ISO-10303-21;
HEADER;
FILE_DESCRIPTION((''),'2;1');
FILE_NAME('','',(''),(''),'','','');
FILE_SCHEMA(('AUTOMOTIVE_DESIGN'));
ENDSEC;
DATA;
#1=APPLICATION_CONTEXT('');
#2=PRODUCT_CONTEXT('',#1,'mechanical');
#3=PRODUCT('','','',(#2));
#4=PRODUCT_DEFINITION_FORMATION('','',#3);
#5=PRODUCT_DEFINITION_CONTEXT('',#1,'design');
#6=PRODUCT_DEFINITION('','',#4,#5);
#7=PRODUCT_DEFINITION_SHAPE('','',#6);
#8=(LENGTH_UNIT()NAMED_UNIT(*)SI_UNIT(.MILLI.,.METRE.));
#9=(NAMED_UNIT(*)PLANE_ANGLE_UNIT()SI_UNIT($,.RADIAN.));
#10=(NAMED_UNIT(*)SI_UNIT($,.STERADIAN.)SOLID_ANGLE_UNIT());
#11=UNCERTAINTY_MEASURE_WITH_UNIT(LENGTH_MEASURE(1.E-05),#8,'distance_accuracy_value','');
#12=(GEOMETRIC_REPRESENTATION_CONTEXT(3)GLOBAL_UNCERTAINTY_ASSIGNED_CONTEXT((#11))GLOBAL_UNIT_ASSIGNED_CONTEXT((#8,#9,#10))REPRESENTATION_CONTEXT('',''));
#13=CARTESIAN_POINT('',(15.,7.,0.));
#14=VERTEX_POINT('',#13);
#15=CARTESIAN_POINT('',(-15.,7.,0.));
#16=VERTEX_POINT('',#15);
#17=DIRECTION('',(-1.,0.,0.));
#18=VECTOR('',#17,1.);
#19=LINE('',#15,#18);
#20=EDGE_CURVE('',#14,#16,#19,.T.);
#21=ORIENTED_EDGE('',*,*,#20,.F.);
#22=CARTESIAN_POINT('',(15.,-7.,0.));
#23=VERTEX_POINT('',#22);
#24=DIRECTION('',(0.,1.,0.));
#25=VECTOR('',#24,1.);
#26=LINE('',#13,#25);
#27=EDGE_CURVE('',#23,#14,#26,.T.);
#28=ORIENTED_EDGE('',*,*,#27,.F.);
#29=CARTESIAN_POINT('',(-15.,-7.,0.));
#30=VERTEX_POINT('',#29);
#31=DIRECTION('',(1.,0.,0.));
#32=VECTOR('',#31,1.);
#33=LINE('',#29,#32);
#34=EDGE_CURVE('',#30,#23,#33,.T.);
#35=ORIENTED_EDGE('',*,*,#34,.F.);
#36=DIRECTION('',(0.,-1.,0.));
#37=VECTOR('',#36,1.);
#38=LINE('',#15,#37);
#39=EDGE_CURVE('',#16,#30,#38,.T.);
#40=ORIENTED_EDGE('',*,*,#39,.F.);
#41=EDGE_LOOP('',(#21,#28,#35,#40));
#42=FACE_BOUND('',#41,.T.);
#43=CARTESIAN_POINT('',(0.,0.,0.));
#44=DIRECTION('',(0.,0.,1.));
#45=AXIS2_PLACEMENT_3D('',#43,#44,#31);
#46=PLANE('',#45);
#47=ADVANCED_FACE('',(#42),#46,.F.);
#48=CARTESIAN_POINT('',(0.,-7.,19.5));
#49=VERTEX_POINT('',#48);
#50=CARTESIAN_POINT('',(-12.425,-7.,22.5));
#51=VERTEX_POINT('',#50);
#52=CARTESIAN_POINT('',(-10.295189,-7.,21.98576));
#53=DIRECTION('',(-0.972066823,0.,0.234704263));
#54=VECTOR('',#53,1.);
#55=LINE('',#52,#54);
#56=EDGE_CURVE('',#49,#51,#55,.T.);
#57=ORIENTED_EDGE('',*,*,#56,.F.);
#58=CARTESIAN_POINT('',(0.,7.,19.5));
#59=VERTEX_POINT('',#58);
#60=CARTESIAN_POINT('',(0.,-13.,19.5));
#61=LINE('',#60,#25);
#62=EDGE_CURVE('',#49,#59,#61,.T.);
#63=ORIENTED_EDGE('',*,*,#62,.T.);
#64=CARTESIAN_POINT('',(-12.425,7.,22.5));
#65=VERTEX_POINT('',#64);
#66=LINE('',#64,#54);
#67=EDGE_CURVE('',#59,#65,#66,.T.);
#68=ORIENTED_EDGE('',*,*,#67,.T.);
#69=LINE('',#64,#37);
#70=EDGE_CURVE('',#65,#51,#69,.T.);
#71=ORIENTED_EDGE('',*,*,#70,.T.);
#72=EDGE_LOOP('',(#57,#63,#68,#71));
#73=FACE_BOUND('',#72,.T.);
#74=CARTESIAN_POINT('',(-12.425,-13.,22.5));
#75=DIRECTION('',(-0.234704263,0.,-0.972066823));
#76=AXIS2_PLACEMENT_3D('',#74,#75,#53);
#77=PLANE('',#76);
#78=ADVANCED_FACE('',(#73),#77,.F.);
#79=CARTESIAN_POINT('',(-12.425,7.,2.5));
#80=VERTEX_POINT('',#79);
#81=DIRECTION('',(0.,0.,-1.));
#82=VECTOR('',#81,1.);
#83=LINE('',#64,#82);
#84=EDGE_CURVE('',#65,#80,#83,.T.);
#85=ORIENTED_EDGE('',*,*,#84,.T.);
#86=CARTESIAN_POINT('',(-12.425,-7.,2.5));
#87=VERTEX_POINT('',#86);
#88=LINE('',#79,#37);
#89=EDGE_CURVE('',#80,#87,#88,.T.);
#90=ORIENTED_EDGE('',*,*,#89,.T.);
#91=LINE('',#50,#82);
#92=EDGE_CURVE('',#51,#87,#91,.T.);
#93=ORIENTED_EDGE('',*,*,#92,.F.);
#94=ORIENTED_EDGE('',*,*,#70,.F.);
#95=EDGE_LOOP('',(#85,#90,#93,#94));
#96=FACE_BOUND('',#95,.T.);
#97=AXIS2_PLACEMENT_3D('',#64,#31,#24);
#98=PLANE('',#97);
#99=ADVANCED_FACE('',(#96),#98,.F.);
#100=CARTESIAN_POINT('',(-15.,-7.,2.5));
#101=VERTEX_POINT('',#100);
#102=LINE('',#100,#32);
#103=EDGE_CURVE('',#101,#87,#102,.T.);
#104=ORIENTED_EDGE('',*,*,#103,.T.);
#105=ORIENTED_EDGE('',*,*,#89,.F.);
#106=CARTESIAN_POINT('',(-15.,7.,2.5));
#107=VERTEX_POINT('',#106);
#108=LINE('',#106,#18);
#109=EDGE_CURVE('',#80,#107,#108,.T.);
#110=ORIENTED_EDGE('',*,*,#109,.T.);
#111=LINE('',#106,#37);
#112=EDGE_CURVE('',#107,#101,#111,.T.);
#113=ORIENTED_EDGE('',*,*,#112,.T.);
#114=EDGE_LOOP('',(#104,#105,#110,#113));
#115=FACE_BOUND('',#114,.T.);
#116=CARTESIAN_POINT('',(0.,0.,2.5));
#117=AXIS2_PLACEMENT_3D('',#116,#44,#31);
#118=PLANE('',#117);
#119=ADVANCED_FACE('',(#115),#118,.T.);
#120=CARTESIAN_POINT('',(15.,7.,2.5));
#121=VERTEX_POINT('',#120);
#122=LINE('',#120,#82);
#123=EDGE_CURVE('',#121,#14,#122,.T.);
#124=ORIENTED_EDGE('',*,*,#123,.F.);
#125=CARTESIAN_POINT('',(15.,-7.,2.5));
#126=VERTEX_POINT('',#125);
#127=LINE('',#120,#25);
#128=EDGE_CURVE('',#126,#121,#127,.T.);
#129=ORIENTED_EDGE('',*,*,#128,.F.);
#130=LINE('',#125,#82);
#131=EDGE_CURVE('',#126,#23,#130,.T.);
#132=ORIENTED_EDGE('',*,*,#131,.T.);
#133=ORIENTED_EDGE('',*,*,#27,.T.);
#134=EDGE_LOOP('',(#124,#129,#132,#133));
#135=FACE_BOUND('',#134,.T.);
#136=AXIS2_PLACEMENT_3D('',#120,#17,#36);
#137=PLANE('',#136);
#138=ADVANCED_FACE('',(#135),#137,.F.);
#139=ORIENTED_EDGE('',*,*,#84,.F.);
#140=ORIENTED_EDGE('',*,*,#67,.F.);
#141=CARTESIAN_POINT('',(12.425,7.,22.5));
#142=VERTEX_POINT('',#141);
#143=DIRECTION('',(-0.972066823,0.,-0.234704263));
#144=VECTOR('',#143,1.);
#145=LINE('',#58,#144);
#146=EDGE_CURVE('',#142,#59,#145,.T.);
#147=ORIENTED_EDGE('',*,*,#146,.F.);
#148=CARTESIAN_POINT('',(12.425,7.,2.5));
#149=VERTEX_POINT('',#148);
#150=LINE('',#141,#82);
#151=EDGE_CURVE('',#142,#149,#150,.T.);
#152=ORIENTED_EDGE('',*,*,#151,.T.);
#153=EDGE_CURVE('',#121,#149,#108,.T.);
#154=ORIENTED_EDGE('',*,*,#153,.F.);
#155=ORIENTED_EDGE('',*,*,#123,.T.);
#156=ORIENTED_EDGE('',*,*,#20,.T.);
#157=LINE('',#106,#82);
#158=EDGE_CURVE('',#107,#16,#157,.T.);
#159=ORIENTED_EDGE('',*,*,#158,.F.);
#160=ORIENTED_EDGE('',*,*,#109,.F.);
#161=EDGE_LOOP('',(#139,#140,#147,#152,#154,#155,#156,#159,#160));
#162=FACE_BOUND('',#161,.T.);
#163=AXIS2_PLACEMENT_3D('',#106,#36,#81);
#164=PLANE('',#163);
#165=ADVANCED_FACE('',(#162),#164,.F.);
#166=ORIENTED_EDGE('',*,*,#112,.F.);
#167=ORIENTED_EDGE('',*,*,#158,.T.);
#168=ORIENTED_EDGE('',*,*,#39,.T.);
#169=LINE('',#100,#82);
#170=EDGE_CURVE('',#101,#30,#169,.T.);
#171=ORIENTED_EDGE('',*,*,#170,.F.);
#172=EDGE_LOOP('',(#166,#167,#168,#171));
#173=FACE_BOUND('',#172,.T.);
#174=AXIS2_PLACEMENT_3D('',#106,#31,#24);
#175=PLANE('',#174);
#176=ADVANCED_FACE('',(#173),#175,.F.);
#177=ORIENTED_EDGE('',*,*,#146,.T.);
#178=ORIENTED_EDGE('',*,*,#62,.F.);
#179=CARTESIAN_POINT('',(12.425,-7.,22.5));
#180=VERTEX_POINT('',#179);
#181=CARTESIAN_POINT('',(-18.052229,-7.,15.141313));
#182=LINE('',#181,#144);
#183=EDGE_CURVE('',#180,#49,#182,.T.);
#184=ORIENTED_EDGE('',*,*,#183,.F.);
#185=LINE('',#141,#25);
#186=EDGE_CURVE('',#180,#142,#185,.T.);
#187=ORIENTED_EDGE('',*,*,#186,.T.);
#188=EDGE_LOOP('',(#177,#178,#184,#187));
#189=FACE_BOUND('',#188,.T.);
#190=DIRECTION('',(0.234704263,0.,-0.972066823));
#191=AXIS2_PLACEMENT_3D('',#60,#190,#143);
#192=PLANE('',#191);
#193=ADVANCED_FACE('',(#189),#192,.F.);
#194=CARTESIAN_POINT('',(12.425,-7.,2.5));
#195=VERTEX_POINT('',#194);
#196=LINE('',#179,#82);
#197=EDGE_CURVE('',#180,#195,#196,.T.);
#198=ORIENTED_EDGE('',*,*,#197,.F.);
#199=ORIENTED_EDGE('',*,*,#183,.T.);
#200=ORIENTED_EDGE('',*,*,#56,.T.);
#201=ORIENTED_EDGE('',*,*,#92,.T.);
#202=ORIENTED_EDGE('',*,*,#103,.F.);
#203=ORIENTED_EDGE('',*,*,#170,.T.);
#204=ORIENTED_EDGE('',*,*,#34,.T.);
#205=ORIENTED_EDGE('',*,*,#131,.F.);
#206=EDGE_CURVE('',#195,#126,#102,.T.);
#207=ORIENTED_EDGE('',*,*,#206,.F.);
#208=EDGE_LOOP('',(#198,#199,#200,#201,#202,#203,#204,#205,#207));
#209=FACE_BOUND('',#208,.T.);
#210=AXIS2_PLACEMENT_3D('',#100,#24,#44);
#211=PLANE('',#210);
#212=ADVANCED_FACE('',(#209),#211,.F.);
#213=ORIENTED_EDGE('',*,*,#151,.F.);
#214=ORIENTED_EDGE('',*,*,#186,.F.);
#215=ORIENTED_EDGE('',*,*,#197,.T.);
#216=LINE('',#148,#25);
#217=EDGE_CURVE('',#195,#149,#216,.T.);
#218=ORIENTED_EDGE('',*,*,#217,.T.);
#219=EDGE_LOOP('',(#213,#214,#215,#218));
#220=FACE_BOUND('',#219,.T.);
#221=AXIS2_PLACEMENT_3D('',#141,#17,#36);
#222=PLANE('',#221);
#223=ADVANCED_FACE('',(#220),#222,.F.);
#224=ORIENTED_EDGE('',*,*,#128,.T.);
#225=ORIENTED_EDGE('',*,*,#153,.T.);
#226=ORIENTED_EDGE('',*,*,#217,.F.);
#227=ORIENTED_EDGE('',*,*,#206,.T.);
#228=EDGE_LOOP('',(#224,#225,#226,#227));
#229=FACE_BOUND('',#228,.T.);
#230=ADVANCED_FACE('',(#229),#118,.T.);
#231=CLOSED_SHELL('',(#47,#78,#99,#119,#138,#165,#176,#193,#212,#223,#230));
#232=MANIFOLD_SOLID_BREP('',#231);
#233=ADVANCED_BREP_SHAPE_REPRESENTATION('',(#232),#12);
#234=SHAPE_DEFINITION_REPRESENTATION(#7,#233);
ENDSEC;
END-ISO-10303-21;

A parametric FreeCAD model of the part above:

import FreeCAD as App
import Part
import Sketcher

doc = App.newDocument("Part")
params = doc.addObject("Spreadsheet::Sheet", "Params")
for row, (alias, value) in enumerate([
    ("sketch1_width", "30 mm"),
    ("sketch1_height", "14 mm"),
    ("pad1_length", "2.5 mm"),
    ("sketch2_height", "14 mm"),
    ("sketch2_width", "24.85 mm"),
    ("pad2_length", "20 mm"),
    ("sketch3_width", "24.85 mm"),
    ("pocket1_length", "20 mm"),
], start=1):
    params.set(f"A{row}", alias)
    params.set(f"B{row}", "=" + value)
    params.setAlias(f"B{row}", alias)

body = doc.addObject("PartDesign::Body", "Body")

# Sketch on XY plane
sketch1 = body.newObject("Sketcher::SketchObject", "Sketch")
sketch1.AttachmentSupport = (doc.getObject("XY_Plane"), [""])
sketch1.MapMode = "FlatFace"
sketch1.addGeometry([
    Part.LineSegment(App.Vector(-15, 7, 0), App.Vector(-15, -7, 0)),
    Part.LineSegment(App.Vector(-15, -7, 0), App.Vector(15, -7, 0)),
    Part.LineSegment(App.Vector(15, -7, 0), App.Vector(15, 7, 0)),
    Part.LineSegment(App.Vector(15, 7, 0), App.Vector(-15, 7, 0)),
], False)
sketch1.addConstraint([
    Sketcher.Constraint("Coincident", 0, 2, 1, 1),
    Sketcher.Constraint("Coincident", 1, 2, 2, 1),
    Sketcher.Constraint("Coincident", 2, 2, 3, 1),
    Sketcher.Constraint("Coincident", 3, 2, 0, 1),
    Sketcher.Constraint("Vertical", 0),
    Sketcher.Constraint("Horizontal", 1),
    Sketcher.Constraint("Vertical", 2),
    Sketcher.Constraint("Horizontal", 3),
    Sketcher.Constraint("Symmetric", 0, 2, 2, 2, -1, 1),
    Sketcher.Constraint("DistanceX", 1, 1, 1, 2, 30.0),
    Sketcher.Constraint("DistanceY", 0, 2, 0, 1, 14.0),
])
sketch1.setExpression("Constraints[9]", "Params.sketch1_width")
sketch1.setExpression("Constraints[10]", "Params.sketch1_height")
pad1 = body.newObject("PartDesign::Pad", "Pad")
pad1.Profile = sketch1
pad1.setExpression("Length", "Params.pad1_length")

# Sketch on XY plane
sketch2 = body.newObject("Sketcher::SketchObject", "Sketch001")
sketch2.AttachmentSupport = (doc.getObject("XY_Plane"), [""])
sketch2.MapMode = "FlatFace"
sketch2.AttachmentOffset = App.Placement(App.Vector(0, 0, 2.5), App.Rotation())
sketch2.addGeometry([
    Part.LineSegment(App.Vector(-12.425, 7, 0), App.Vector(-12.425, -7, 0)),
    Part.LineSegment(App.Vector(-12.425, -7, 0), App.Vector(12.425, -7, 0)),
    Part.LineSegment(App.Vector(12.425, -7, 0), App.Vector(12.425, 7, 0)),
    Part.LineSegment(App.Vector(12.425, 7, 0), App.Vector(-12.425, 7, 0)),
], False)
sketch2.addConstraint([
    Sketcher.Constraint("Coincident", 0, 2, 1, 1),
    Sketcher.Constraint("Coincident", 1, 2, 2, 1),
    Sketcher.Constraint("Coincident", 2, 2, 3, 1),
    Sketcher.Constraint("Coincident", 3, 2, 0, 1),
    Sketcher.Constraint("Vertical", 0),
    Sketcher.Constraint("Horizontal", 1),
    Sketcher.Constraint("Vertical", 2),
    Sketcher.Constraint("Horizontal", 3),
    Sketcher.Constraint("Symmetric", 0, 2, 2, 2, -1, 1),
    Sketcher.Constraint("DistanceY", 0, 2, 0, 1, 14.0),
    Sketcher.Constraint("DistanceX", 1, 1, 1, 2, 24.85),
])
sketch2.setExpression("Constraints[9]", "Params.sketch2_height")
sketch2.setExpression("Constraints[10]", "Params.sketch2_width")
pad2 = body.newObject("PartDesign::Pad", "Pad001")
pad2.Profile = sketch2
pad2.setExpression("Length", "Params.pad2_length")

# Sketch on XZ plane
sketch3 = body.newObject("Sketcher::SketchObject", "Sketch002")
sketch3.AttachmentSupport = (doc.getObject("XZ_Plane"), [""])
sketch3.MapMode = "FlatFace"
sketch3.AttachmentOffset = App.Placement(App.Vector(0, 0, -7), App.Rotation())
sketch3.addGeometry([
    Part.LineSegment(App.Vector(0, 19.5, 0), App.Vector(-12.425, 22.5, 0)),
    Part.LineSegment(App.Vector(-12.425, 22.5, 0), App.Vector(12.425, 22.5, 0)),
    Part.LineSegment(App.Vector(12.425, 22.5, 0), App.Vector(0, 19.5, 0)),
], False)
sketch3.addConstraint([
    Sketcher.Constraint("Coincident", 0, 2, 1, 1),
    Sketcher.Constraint("Coincident", 1, 2, 2, 1),
    Sketcher.Constraint("Coincident", 2, 2, 0, 1),
    Sketcher.Constraint("Horizontal", 1),
    Sketcher.Constraint("PointOnObject", 2, 2, -2),
    Sketcher.Constraint("Equal", 0, 2),
    Sketcher.Constraint("DistanceY", 2, 2, 0, 2, 3.0),
    Sketcher.Constraint("DistanceX", 1, 1, 1, 2, 24.85),
    Sketcher.Constraint("DistanceY", -1, 1, 0, 2, 22.5),
])
sketch3.setExpression("Constraints[7]", "Params.sketch3_width")
pocket1 = body.newObject("PartDesign::Pocket", "Pocket")
pocket1.Profile = sketch3
pocket1.setExpression("Length", "Params.pocket1_length")
pocket1.Reversed = True

doc.recompute()
